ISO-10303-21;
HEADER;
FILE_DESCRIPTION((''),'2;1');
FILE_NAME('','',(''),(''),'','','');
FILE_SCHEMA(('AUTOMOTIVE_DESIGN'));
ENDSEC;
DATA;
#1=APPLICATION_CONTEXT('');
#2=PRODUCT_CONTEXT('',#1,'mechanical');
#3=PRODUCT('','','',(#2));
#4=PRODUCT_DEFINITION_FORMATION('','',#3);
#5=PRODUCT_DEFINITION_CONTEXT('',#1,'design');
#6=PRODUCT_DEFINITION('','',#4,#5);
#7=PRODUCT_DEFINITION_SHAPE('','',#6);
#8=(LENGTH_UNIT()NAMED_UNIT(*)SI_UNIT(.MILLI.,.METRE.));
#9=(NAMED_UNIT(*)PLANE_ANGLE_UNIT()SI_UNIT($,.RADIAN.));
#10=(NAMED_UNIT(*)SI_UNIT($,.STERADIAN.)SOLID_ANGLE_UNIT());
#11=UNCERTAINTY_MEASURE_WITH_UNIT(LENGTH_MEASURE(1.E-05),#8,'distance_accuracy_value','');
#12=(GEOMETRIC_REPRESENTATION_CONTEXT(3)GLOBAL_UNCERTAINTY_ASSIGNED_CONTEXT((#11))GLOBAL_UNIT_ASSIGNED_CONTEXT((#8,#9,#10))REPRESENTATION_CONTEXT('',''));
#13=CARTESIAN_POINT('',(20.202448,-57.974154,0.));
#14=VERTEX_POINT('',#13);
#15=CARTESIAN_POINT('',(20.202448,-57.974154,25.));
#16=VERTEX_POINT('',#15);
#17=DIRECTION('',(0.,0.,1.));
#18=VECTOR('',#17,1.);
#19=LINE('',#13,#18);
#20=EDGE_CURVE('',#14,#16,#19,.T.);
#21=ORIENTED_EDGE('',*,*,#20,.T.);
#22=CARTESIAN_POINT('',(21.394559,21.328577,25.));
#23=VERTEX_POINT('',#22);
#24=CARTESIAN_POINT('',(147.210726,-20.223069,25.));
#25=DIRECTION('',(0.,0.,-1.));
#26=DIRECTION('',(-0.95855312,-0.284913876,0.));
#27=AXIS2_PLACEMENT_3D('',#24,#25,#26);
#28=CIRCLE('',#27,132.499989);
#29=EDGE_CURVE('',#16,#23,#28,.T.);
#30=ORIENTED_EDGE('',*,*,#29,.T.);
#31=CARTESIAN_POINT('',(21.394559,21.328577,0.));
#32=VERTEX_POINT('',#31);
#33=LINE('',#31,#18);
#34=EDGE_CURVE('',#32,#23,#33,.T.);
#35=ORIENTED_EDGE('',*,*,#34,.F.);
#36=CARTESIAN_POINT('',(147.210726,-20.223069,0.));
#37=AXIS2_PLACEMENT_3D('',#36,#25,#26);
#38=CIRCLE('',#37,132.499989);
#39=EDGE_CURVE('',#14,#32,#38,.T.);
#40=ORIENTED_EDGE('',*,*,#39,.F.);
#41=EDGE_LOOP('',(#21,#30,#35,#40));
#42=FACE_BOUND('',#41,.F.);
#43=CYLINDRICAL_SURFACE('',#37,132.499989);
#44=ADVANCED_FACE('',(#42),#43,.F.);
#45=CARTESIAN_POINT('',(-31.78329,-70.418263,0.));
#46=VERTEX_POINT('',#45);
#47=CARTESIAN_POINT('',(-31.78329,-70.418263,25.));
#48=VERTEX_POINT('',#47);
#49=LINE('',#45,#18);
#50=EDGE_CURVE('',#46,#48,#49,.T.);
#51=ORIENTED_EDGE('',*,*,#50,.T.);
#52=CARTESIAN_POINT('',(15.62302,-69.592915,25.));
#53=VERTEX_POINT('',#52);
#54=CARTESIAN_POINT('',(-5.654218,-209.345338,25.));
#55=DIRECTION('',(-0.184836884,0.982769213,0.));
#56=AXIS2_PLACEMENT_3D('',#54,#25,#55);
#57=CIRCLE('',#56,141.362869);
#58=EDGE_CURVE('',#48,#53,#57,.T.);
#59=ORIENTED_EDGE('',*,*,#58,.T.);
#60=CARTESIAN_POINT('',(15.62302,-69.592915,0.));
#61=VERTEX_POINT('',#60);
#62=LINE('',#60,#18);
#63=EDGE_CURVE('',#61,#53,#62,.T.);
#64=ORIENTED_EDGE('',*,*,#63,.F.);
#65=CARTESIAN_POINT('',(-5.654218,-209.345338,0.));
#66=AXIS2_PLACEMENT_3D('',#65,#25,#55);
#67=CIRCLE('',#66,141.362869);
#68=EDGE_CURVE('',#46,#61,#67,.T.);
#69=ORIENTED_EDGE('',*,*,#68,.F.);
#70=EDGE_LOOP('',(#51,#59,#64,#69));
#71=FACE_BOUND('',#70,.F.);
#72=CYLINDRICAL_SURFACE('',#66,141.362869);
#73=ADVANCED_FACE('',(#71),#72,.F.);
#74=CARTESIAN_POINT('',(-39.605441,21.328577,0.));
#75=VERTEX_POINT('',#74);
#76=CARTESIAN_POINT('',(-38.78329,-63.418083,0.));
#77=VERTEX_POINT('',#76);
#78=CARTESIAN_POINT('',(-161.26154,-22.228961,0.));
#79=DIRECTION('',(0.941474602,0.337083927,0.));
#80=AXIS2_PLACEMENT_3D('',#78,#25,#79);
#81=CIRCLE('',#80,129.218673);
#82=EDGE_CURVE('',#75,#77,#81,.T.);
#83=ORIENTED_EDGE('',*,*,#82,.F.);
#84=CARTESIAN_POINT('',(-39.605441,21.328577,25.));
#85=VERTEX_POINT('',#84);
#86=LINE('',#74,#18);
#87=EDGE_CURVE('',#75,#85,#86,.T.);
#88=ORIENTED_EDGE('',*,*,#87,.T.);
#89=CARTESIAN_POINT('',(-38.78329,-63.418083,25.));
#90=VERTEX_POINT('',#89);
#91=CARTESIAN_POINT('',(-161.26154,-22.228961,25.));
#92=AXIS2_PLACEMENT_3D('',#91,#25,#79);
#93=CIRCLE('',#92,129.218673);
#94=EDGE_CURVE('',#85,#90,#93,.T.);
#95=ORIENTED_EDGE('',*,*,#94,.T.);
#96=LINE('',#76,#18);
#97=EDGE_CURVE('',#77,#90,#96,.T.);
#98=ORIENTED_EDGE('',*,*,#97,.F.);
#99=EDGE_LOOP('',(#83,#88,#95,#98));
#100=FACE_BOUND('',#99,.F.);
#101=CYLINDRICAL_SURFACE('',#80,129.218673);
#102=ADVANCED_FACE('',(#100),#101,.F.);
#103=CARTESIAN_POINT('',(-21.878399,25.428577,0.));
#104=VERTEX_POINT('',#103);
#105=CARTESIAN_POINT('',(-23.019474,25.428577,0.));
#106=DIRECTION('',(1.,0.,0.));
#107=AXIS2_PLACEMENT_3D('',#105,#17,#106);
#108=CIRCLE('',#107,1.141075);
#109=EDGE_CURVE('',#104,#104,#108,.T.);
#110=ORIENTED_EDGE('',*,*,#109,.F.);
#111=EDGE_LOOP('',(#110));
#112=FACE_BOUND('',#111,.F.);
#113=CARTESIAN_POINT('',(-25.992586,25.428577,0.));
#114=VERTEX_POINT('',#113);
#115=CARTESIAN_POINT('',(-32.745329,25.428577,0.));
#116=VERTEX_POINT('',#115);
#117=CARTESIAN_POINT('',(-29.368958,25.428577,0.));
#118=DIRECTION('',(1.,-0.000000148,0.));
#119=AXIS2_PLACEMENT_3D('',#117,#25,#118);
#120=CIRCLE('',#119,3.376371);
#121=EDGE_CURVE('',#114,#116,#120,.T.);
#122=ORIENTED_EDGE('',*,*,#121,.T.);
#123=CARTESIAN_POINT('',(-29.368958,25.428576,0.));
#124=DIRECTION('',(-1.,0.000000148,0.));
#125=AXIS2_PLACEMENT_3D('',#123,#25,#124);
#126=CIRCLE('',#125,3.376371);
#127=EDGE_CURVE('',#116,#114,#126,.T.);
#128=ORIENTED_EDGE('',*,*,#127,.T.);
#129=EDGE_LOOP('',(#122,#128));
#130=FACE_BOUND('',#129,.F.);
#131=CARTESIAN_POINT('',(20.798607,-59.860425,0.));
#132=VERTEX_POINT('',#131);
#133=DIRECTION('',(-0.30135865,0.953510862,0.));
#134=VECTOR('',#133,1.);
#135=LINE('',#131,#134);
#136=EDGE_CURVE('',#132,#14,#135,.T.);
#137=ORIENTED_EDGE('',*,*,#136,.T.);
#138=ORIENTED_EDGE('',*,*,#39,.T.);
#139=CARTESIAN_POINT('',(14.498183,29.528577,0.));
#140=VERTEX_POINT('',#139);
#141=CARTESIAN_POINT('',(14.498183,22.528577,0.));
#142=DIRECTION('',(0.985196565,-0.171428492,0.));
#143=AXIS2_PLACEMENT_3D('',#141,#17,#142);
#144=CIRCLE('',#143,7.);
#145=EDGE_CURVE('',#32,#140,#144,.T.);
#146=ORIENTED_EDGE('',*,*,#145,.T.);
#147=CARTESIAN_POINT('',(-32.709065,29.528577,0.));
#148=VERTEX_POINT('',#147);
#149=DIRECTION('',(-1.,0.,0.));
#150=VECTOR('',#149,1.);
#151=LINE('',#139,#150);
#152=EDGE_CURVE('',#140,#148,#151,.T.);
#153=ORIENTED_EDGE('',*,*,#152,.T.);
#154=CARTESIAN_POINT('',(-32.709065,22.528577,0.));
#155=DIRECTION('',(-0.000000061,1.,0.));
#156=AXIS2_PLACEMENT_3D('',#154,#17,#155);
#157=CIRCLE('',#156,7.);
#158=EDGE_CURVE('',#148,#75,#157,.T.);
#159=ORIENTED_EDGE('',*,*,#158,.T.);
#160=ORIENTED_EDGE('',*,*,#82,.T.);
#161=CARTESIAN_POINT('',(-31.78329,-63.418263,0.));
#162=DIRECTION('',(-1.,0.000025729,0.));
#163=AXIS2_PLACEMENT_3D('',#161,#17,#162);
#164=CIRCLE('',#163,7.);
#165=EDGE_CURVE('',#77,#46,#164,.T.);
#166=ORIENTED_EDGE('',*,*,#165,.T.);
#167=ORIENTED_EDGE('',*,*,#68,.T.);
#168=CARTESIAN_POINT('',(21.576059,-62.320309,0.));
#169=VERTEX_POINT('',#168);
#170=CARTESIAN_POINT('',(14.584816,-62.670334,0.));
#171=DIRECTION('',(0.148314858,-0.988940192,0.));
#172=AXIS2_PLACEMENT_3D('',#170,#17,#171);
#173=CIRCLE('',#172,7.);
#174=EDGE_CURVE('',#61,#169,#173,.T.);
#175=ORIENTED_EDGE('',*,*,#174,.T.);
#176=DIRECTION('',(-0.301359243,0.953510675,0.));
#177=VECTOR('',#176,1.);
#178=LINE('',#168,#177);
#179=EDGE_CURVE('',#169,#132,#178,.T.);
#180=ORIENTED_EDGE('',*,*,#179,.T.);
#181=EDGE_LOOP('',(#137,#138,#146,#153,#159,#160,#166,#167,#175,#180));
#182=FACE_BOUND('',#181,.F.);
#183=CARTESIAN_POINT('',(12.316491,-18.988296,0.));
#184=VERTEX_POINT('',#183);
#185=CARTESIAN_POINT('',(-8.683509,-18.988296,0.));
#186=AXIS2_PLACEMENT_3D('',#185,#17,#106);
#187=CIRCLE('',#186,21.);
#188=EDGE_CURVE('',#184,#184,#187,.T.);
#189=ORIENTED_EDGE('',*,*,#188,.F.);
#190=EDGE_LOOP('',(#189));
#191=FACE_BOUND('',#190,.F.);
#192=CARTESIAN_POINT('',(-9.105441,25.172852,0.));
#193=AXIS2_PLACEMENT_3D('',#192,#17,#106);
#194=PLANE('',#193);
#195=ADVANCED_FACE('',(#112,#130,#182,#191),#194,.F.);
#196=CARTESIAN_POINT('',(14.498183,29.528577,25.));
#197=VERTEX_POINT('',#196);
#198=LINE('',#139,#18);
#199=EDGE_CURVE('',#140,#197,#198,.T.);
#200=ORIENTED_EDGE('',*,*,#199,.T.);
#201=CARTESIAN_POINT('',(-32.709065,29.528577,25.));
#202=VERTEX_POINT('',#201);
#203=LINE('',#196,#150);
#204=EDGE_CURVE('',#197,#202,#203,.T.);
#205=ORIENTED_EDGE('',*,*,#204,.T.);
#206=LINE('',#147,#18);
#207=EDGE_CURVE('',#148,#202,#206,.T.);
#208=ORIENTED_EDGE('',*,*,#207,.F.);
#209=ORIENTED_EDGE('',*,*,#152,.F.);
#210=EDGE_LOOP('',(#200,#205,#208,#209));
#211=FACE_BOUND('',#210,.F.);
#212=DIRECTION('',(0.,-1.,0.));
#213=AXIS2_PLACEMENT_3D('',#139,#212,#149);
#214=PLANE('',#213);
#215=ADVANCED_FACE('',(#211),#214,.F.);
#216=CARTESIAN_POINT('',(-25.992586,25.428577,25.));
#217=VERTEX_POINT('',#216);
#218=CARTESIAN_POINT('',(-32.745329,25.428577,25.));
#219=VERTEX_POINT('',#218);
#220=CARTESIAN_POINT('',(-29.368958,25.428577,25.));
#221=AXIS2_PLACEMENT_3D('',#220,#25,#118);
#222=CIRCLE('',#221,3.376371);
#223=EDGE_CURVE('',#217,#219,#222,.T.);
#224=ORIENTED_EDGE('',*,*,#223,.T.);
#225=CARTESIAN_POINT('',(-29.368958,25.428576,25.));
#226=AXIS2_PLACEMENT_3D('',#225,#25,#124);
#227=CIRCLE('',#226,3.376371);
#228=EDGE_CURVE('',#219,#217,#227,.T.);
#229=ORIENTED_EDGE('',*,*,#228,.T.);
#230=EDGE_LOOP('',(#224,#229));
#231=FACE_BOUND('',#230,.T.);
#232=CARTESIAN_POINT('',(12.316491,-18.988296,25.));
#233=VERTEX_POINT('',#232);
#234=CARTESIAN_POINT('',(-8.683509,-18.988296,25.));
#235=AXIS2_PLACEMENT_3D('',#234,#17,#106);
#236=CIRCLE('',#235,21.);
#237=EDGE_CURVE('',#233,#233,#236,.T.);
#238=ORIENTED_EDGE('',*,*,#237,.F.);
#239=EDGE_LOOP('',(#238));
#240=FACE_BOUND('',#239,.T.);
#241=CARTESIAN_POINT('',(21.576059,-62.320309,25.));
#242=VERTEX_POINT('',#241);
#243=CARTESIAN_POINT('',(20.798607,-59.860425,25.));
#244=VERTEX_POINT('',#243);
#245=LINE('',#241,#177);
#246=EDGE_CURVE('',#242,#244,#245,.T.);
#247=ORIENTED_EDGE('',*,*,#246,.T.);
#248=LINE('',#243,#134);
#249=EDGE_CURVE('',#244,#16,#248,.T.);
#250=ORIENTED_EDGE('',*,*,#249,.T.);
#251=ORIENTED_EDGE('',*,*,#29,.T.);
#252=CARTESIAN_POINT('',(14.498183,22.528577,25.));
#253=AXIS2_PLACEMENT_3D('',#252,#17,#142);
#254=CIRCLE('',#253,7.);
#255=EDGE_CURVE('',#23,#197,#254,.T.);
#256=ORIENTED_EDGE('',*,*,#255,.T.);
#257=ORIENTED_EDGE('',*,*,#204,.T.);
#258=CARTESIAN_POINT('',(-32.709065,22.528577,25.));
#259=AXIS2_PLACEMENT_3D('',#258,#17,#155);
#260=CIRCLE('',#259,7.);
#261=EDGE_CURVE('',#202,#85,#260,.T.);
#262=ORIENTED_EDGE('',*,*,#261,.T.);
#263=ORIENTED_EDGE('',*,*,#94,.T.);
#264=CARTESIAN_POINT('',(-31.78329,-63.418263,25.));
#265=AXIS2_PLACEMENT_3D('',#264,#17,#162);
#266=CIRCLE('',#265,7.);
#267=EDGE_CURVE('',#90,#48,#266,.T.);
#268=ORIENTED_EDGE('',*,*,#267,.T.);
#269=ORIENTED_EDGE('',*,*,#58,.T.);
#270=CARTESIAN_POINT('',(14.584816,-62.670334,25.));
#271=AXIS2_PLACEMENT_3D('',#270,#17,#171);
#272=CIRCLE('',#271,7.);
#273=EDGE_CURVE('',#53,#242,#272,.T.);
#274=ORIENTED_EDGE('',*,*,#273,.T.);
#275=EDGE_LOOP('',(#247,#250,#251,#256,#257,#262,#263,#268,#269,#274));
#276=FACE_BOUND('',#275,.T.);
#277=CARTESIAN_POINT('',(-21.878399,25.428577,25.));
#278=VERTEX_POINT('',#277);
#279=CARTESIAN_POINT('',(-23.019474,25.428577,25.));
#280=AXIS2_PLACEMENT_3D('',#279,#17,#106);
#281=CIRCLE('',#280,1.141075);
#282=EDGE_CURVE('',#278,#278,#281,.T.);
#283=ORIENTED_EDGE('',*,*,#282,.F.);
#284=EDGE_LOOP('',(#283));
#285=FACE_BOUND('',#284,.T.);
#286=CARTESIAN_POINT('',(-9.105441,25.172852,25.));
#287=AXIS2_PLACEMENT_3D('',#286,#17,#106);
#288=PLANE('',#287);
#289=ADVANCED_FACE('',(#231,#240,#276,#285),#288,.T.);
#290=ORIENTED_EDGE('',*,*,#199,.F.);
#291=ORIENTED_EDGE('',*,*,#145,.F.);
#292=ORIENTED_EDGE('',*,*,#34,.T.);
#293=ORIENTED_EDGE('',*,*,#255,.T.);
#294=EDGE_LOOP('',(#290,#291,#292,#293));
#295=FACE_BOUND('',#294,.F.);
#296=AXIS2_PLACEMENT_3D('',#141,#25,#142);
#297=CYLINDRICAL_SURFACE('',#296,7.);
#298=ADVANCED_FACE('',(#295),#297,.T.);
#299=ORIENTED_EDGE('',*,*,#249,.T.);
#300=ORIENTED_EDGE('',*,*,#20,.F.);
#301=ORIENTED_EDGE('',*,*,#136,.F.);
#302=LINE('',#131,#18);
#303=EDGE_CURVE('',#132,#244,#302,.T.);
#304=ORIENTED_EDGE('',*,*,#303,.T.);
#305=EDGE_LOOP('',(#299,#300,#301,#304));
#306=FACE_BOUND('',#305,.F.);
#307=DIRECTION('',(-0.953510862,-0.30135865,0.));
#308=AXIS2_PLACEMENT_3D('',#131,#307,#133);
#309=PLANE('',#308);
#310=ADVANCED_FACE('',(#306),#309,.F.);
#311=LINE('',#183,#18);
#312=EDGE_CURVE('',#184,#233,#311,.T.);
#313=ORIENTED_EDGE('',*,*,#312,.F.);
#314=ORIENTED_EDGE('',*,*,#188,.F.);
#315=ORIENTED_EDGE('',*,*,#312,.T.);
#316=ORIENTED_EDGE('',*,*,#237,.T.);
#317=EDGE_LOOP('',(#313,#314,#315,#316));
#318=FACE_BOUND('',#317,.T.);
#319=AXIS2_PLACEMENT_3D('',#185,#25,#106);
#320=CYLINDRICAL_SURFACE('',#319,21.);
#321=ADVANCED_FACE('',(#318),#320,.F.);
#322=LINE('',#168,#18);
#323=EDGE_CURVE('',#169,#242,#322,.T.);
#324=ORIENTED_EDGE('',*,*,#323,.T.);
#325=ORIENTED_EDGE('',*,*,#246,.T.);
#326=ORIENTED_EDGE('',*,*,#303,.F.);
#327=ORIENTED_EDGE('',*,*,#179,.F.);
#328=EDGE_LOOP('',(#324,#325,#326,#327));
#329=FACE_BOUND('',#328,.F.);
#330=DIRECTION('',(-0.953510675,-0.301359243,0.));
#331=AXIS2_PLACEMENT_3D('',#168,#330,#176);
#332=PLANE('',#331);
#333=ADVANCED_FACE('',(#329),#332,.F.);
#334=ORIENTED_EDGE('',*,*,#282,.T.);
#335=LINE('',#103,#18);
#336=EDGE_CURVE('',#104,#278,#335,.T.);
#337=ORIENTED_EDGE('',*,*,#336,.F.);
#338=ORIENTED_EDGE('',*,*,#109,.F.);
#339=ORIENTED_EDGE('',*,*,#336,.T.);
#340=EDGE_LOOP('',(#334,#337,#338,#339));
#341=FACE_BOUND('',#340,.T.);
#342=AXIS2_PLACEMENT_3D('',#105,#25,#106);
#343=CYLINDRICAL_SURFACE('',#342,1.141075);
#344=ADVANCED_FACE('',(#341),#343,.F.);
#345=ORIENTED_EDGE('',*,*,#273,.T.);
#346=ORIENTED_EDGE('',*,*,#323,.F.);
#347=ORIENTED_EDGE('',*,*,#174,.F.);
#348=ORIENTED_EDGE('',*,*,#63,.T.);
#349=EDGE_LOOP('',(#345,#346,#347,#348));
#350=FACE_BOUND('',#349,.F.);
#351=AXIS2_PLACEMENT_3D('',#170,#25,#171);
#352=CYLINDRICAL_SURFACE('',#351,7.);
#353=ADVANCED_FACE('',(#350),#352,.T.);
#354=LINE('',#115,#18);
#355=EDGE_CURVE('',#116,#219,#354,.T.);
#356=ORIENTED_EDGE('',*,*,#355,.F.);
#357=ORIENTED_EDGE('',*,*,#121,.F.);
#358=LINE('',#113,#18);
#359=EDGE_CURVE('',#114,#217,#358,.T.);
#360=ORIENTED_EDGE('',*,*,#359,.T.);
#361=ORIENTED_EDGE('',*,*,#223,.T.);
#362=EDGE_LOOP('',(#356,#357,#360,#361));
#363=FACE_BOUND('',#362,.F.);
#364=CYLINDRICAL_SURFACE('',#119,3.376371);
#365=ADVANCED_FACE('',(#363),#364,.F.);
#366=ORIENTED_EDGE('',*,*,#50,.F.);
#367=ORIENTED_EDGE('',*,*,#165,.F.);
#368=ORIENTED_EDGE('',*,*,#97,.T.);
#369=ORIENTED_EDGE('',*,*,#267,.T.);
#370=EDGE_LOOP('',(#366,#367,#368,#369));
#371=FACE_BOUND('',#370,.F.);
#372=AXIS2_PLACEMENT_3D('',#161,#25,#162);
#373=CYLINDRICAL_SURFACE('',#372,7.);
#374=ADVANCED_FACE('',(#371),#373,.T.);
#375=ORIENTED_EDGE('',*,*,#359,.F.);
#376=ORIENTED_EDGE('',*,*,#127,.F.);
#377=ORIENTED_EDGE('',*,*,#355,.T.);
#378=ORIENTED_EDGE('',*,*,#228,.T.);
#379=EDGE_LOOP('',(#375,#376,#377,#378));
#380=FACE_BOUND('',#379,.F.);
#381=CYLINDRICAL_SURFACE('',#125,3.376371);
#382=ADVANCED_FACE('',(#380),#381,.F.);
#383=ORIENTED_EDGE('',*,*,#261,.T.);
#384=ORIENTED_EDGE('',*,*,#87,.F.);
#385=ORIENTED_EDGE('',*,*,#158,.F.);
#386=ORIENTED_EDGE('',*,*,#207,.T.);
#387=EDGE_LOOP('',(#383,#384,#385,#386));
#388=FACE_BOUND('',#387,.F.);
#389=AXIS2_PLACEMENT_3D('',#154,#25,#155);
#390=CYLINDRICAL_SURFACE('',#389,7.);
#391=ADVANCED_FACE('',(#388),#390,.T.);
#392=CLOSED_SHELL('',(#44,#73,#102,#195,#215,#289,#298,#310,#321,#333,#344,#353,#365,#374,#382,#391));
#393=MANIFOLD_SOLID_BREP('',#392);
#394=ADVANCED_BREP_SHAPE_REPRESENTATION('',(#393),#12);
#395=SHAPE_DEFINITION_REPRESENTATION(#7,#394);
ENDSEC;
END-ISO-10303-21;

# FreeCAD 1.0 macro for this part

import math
import FreeCAD as App
import Part
import Sketcher
from FreeCAD import Vector
Q = App.Units.Quantity

doc = App.newDocument("Part")
body = doc.addObject("PartDesign::Body", "Body")

sketch1 = body.newObject("Sketcher::SketchObject", "Sketch")
sketch1.AttachmentSupport = (doc.getObject("XY_Plane"), [""])
sketch1.MapMode = "FlatFace"
sketch1.addGeometry([
    Part.LineSegment(Vector(14.5, 29.5, 0), Vector(-32.7, 29.5, 0)),
    Part.ArcOfCircle(Part.Circle(Vector(-32.7, 22.5, 0), Vector(0, 0, 1), 7), math.radians(90), math.radians(190)),
    Part.ArcOfCircle(Part.Circle(Vector(-161.3, -22.2, 0), Vector(0, 0, 1), 129.2), math.radians(-19), math.radians(20)),
    Part.ArcOfCircle(Part.Circle(Vector(-31.8, -63.4, 0), Vector(0, 0, 1), 7), math.radians(180), math.radians(270)),
    Part.ArcOfCircle(Part.Circle(Vector(-5.7, -209.3, 0), Vector(0, 0, 1), 141.4), math.radians(81.34), math.radians(100.65)),
    Part.ArcOfCircle(Part.Circle(Vector(14.6, -62.7, 0), Vector(0, 0, 1), 7), math.radians(-81), math.radians(3)),
    Part.LineSegment(Vector(21.6, -62.3, 0), Vector(20.8, -59.9, 0)),
    Part.LineSegment(Vector(20.8, -59.9, 0), Vector(20.2, -58, 0)),
    Part.ArcOfCircle(Part.Circle(Vector(147.2, -20.2, 0), Vector(0, 0, 1), 132.5), math.radians(162), math.radians(197)),
    Part.ArcOfCircle(Part.Circle(Vector(14.5, 22.5, 0), Vector(0, 0, 1), 7), math.radians(-10), math.radians(90)),
    Part.Circle(Vector(-8.7, -19, 0), Vector(0, 0, 1), 21),
    Part.ArcOfCircle(Part.Circle(Vector(-29.4, 25.4, 0), Vector(0, 0, 1), 3.4), math.radians(-180), math.radians(0)),
    Part.ArcOfCircle(Part.Circle(Vector(-29.4, 25.4, 0), Vector(0, 0, 1), 3.4), math.radians(0), math.radians(180)),
    Part.Circle(Vector(-23, 25.4, 0), Vector(0, 0, 1), 1.1),
], False)
sketch1.addConstraint([
    Sketcher.Constraint("Tangent", 0, 2, 1, 1),
    Sketcher.Constraint("Coincident", 1, 2, 2, 2),
    Sketcher.Constraint("Coincident", 2, 1, 3, 1),
    Sketcher.Constraint("Coincident", 3, 2, 4, 2),
    Sketcher.Constraint("Coincident", 4, 1, 5, 1),
    Sketcher.Constraint("Coincident", 5, 2, 6, 1),
    Sketcher.Constraint("Coincident", 6, 2, 7, 1),
    Sketcher.Constraint("Coincident", 7, 2, 8, 2),
    Sketcher.Constraint("Coincident", 8, 1, 9, 1),
    Sketcher.Constraint("Tangent", 9, 2, 0, 1),
    Sketcher.Constraint("Tangent", 11, 1, 12, 2),
    Sketcher.Constraint("Coincident", 12, 1, 11, 2),
    Sketcher.Constraint("Horizontal", 0),
    Sketcher.Constraint("Equal", 1, 3),
    Sketcher.Constraint("Equal", 3, 5),
    Sketcher.Constraint("Equal", 5, 9),
    Sketcher.Constraint("Parallel", 6, 7),
    Sketcher.Constraint("Horizontal", 12, 3, 13, 3),
    Sketcher.Constraint("Horizontal", 1, 2, 8, 1),
    Sketcher.Constraint("Horizontal", 13, 3, 11, 1),
    Sketcher.Constraint("Horizontal", 11, 1, 12, 1),
    Sketcher.Constraint("Diameter", 10, Q("42 mm")),
    Sketcher.Constraint("Radius", 1, Q("7 mm")),
    Sketcher.Constraint("DistanceX", 2, 1, 3, 2, Q("7 mm")),
    Sketcher.Constraint("DistanceY", 1, 3, 11, 3, Q("2.900001 mm")),
    Sketcher.Constraint("DistanceY", 1, 2, 1, 3, Q("1.2 mm")),
    Sketcher.Constraint("Diameter", 13, Q("2.28215 mm")),
    Sketcher.Constraint("Radius", 4, Q("141.362869 mm")),
    Sketcher.Constraint("Radius", 8, Q("132.499989 mm")),
    Sketcher.Constraint("Radius", 11, Q("3.376371 mm")),
    Sketcher.Constraint("Radius", 2, Q("129.218673 mm")),
    Sketcher.Constraint("DistanceX", 0, 2, 0, 1, Q("47.207248 mm")),
    Sketcher.Constraint("DistanceX", 2, 3, -1, 1, Q("161.26154 mm")),
    Sketcher.Constraint("DistanceY", 2, 3, -1, 1, Q("22.228961 mm")),
    Sketcher.Constraint("DistanceX", 3, 3, -1, 1, Q("31.78329 mm")),
    Sketcher.Constraint("DistanceY", 4, 3, -1, 1, Q("209.345338 mm")),
    Sketcher.Constraint("DistanceY", 8, 3, -1, 1, Q("20.223069 mm")),
    Sketcher.Constraint("DistanceX", 10, 3, -1, 1, Q("8.683509 mm")),
    Sketcher.Constraint("DistanceX", 1, 2, -1, 1, Q("39.605441 mm")),
    Sketcher.Constraint("DistanceX", -1, 1, 4, 1, Q("15.62302 mm")),
    Sketcher.Constraint("DistanceX", -1, 1, 5, 2, Q("21.576059 mm")),
    Sketcher.Constraint("DistanceY", 5, 2, -1, 1, Q("62.320309 mm")),
    Sketcher.Constraint("DistanceX", -1, 1, 7, 2, Q("20.202448 mm")),
    Sketcher.Constraint("DistanceX", 11, 1, -1, 1, Q("32.745329 mm")),
    Sketcher.Constraint("DistanceY", 3, 3, 1, 3, Q("85.94684 mm")),
    Sketcher.Constraint("DistanceX", 1, 3, 13, 3, Q("9.689591 mm")),
    Sketcher.Constraint("DistanceY", 4, 1, 10, 3, Q("50.604619 mm")),
    Sketcher.Constraint("DistanceX", 5, 3, 6, 2, Q("6.213791 mm")),
])
pad1 = body.newObject("PartDesign::Pad", "Pad")
pad1.Profile = sketch1
pad1.Length = 25

doc.recompute()
